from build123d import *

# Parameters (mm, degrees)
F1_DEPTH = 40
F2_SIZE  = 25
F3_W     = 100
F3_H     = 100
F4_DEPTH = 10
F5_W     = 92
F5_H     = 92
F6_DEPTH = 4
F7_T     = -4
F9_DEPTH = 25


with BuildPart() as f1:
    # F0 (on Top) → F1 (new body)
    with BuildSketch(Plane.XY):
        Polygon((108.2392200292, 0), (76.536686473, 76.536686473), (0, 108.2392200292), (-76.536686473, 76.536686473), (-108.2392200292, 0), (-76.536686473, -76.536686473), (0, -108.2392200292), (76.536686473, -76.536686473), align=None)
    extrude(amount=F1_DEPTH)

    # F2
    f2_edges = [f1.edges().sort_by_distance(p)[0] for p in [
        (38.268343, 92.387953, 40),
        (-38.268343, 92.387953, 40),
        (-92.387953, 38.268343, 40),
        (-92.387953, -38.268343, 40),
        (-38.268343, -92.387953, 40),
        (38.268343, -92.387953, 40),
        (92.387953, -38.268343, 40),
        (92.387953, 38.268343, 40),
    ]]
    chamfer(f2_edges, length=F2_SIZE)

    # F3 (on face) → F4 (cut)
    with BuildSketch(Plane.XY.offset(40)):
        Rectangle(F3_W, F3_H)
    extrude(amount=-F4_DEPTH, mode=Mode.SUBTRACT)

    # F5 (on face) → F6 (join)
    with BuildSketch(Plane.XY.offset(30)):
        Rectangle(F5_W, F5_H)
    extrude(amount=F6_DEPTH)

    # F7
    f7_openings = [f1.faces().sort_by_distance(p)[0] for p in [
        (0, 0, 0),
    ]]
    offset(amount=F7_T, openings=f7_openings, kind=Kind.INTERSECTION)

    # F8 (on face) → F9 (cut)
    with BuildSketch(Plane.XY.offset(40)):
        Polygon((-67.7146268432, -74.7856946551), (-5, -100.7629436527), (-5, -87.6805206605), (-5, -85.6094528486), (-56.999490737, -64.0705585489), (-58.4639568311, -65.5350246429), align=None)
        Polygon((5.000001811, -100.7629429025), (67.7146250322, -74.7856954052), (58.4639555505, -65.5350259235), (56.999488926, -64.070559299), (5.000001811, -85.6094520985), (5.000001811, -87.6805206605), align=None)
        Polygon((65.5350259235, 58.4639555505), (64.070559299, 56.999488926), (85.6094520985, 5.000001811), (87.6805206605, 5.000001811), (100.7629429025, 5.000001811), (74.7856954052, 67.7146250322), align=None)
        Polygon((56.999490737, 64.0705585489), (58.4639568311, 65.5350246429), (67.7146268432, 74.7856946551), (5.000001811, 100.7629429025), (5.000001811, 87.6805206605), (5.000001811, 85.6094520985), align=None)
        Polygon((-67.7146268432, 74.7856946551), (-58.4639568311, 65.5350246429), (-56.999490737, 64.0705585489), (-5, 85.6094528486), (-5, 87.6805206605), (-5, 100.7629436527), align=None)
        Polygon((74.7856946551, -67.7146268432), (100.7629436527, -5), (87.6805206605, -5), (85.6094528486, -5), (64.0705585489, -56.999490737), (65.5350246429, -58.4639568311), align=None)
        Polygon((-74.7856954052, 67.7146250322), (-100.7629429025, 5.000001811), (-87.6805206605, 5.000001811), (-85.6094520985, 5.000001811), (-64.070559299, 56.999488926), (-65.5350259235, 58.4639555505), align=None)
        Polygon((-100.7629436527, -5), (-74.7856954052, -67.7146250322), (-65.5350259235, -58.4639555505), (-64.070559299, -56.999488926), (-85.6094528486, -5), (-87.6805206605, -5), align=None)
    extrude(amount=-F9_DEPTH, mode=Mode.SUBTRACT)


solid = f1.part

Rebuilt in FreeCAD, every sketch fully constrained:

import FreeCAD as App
import Part
import Sketcher
Q = App.Units.Quantity


def edges_at(feature, points):
    """Names of the edges that pass closest to the given points."""
    edges = feature.Shape.Edges
    near = lambda p: min(range(len(edges)), key=lambda i: edges[i].distToShape(Part.Vertex(*p))[0])
    return sorted({f"Edge{near(p) + 1}" for p in points})


def faces_at(feature, points):
    """Names of the faces that lie closest to the given points."""
    faces = feature.Shape.Faces
    near = lambda p: min(range(len(faces)), key=lambda i: faces[i].distToShape(Part.Vertex(*p))[0])
    return sorted({f"Face{near(p) + 1}" for p in points})


def add_polygon(sketch, points):
    """Adds a closed chain of lines whose ends are joined by coincident constraints."""
    first, n = sketch.GeometryCount, len(points)
    for a, b in zip(points, points[1:] + points[:1]):
        sketch.addGeometry(Part.LineSegment(App.Vector(*a, 0), App.Vector(*b, 0)), False)
    for i in range(n):
        sketch.addConstraint(Sketcher.Constraint("Coincident", first + i, 2, first + (i + 1) % n, 1))

doc = App.newDocument("Part")
body = doc.addObject("PartDesign::Body", "Body")

sketch1 = body.newObject("Sketcher::SketchObject", "Sketch")
sketch1.AttachmentSupport = (doc.getObject("XY_Plane"), [""])
sketch1.MapMode = "FlatFace"
add_polygon(sketch1, [(108.23922, 0), (76.536686, 76.536686), (0, 108.23922), (-76.536686, 76.536686), (-108.23922, 0), (-76.536686, -76.536686), (0, -108.23922), (76.536686, -76.536686)])
sketch1.addConstraint([
    Sketcher.Constraint("Symmetric", 0, 2, 4, 2, -1, 1),
    Sketcher.Constraint("Symmetric", 1, 2, 5, 2, -1, 1),
    Sketcher.Constraint("Symmetric", 2, 2, 6, 2, -1, 1),
    Sketcher.Constraint("Symmetric", 3, 2, 7, 2, -1, 1),
    Sketcher.Constraint("Symmetric", 0, 2, 2, 2, -2),
    Sketcher.Constraint("PointOnObject", 1, 2, -2),
    Sketcher.Constraint("PointOnObject", 3, 2, -1),
    Sketcher.Constraint("Perpendicular", 0, 2),
    Sketcher.Constraint("Equal", 0, 1),
    Sketcher.Constraint("Angle", 0, Q("112.5 deg")),
    Sketcher.Constraint("DistanceY", -1, 1, 1, 2, 108.23922),
])
pad1 = body.newObject("PartDesign::Pad", "Pad")
pad1.Profile = sketch1
pad1.Length = 40
doc.recompute()

chamfer = body.newObject("PartDesign::Chamfer", "Chamfer")
chamfer.Base = (pad1, edges_at(pad1, [
    (38.268, 92.388, 40),
    (-38.268, 92.388, 40),
    (-92.388, 38.268, 40),
    (-92.388, -38.268, 40),
    (-38.268, -92.388, 40),
    (38.268, -92.388, 40),
    (92.388, -38.268, 40),
    (92.388, 38.268, 40),
]))
chamfer.Size = 25

sketch2 = body.newObject("Sketcher::SketchObject", "Sketch001")
sketch2.AttachmentSupport = (doc.getObject("XY_Plane"), [""])
sketch2.MapMode = "FlatFace"
sketch2.AttachmentOffset = App.Placement(App.Vector(0, 0, 40), App.Rotation())
add_polygon(sketch2, [(-50, 50), (-50, -50), (50, -50), (50, 50)])
sketch2.addConstraint([
    Sketcher.Constraint("Vertical", 0),
    Sketcher.Constraint("Horizontal", 1),
    Sketcher.Constraint("Vertical", 2),
    Sketcher.Constraint("Horizontal", 3),
    Sketcher.Constraint("Symmetric", 0, 2, 2, 2, -1, 1),
    Sketcher.Constraint("Equal", 3, 0),
    Sketcher.Constraint("DistanceX", 1, 1, 1, 2, 100.0),
])
pocket1 = body.newObject("PartDesign::Pocket", "Pocket")
pocket1.Profile = sketch2
pocket1.Length = 10

sketch3 = body.newObject("Sketcher::SketchObject", "Sketch002")
sketch3.AttachmentSupport = (doc.getObject("XY_Plane"), [""])
sketch3.MapMode = "FlatFace"
sketch3.AttachmentOffset = App.Placement(App.Vector(0, 0, 30), App.Rotation())
add_polygon(sketch3, [(-46, 46), (-46, -46), (46, -46), (46, 46)])
sketch3.addConstraint([
    Sketcher.Constraint("Vertical", 0),
    Sketcher.Constraint("Horizontal", 1),
    Sketcher.Constraint("Vertical", 2),
    Sketcher.Constraint("Horizontal", 3),
    Sketcher.Constraint("Symmetric", 0, 2, 2, 2, -1, 1),
    Sketcher.Constraint("Equal", 3, 0),
    Sketcher.Constraint("DistanceX", 1, 1, 1, 2, 92.0),
])
pad2 = body.newObject("PartDesign::Pad", "Pad001")
pad2.Profile = sketch3
pad2.Length = 4
doc.recompute()

thickness = body.newObject("PartDesign::Thickness", "Thickness")
thickness.Base = (pad2, faces_at(pad2, [(0, 0, 0)]))
thickness.Value = 4
thickness.Reversed = True
thickness.Join = "Intersection"

sketch4 = body.newObject("Sketcher::SketchObject", "Sketch003")
sketch4.AttachmentSupport = (doc.getObject("XY_Plane"), [""])
sketch4.MapMode = "FlatFace"
sketch4.AttachmentOffset = App.Placement(App.Vector(0, 0, 40), App.Rotation())
add_polygon(sketch4, [(-67.714627, -74.785695), (-5, -100.762944), (-5, -85.609453), (-56.999491, -64.070559), (-58.463957, -65.535025)])
add_polygon(sketch4, [(5.000002, -100.762943), (67.714625, -74.785695), (56.999489, -64.070559), (5.000002, -85.609452)])
add_polygon(sketch4, [(64.070559, 56.999489), (85.609452, 5.000002), (100.762943, 5.000002), (74.785695, 67.714625)])
add_polygon(sketch4, [(56.999491, 64.070559), (58.463957, 65.535025), (67.714627, 74.785695), (5.000002, 100.762943), (5.000002, 85.609452)])
add_polygon(sketch4, [(-67.714627, 74.785695), (-58.463957, 65.535025), (-56.999491, 64.070559), (-5, 85.609453), (-5, 100.762944)])
add_polygon(sketch4, [(74.785695, -67.714627), (100.762944, -5), (85.609453, -5), (64.070559, -56.999491), (65.535025, -58.463957)])
add_polygon(sketch4, [(-74.785695, 67.714625), (-100.762943, 5.000002), (-85.609452, 5.000002), (-64.070559, 56.999489)])
add_polygon(sketch4, [(-100.762944, -5), (-74.785695, -67.714625), (-64.070559, -56.999489), (-85.609453, -5)])
sketch4.addConstraint([
    Sketcher.Constraint("Vertical", 1),
    Sketcher.Constraint("Vertical", 8),
    Sketcher.Constraint("Horizontal", 10),
    Sketcher.Constraint("Vertical", 16),
    Sketcher.Constraint("Vertical", 21),
    Sketcher.Constraint("Horizontal", 24),
    Sketcher.Constraint("Horizontal", 29),
    Sketcher.Constraint("Horizontal", 35),
    Sketcher.Constraint("Symmetric", 3, 2, 13, 2, -1, 1),
    Sketcher.Constraint("Symmetric", 4, 2, 14, 2, -1, 1),
    Sketcher.Constraint("Symmetric", 0, 2, 15, 2, -1, 1),
    Sketcher.Constraint("Symmetric", 2, 2, 17, 2, -1, 1),
    Sketcher.Constraint("Symmetric", 6, 2, 19, 2, -1, 1),
    Sketcher.Constraint("Symmetric", 7, 2, 20, 2, -1, 1),
    Sketcher.Constraint("Symmetric", 5, 2, 22, 2, -1, 1),
    Sketcher.Constraint("Symmetric", 23, 2, 28, 2, -1, 1),
    Sketcher.Constraint("Symmetric", 25, 2, 30, 2, -1, 1),
    Sketcher.Constraint("Symmetric", 27, 2, 31, 2, -1, 1),
    Sketcher.Constraint("Symmetric", 11, 2, 32, 2, -1, 1),
    Sketcher.Constraint("Symmetric", 12, 2, 33, 2, -1, 1),
    Sketcher.Constraint("Symmetric", 9, 2, 34, 2, -1, 1),
    Sketcher.Constraint("Symmetric", 4, 2, 5, 2, -2),
    Sketcher.Constraint("Symmetric", 2, 2, 6, 2, -2),
    Sketcher.Constraint("Symmetric", 1, 2, 7, 2, -2),
    Sketcher.Constraint("Symmetric", 13, 2, 18, 2, -2),
    Sketcher.Constraint("Symmetric", 10, 2, 28, 2, -2),
    Sketcher.Constraint("Symmetric", 12, 2, 30, 2, -2),
    Sketcher.Constraint("Symmetric", 11, 2, 31, 2, -2),
    Sketcher.Constraint("Parallel", 0, 2),
    Sketcher.Constraint("Parallel", 3, 4),
    Sketcher.Constraint("Perpendicular", 4, 6),
    Sketcher.Constraint("Parallel", 5, 7),
    Sketcher.Constraint("Perpendicular", 7, 9),
    Sketcher.Constraint("Parallel", 9, 11),
    Sketcher.Constraint("Perpendicular", 6, 12),
    Sketcher.Constraint("Parallel", 15, 17),
    Sketcher.Constraint("Parallel", 20, 22),
    Sketcher.Constraint("Parallel", 23, 25),
    Sketcher.Constraint("Parallel", 19, 26),
    Sketcher.Constraint("Parallel", 28, 30),
    Sketcher.Constraint("Perpendicular", 22, 32),
    Sketcher.Constraint("Equal", 35, 1),
    Sketcher.Constraint("Equal", 7, 9),
    Sketcher.Constraint("Equal", 19, 26),
    Sketcher.Constraint("DistanceX", 0, 2, -1, 1, 5.0),
    Sketcher.Constraint("DistanceY", -1, 1, 9, 2, 5.000002),
    Sketcher.Constraint("Angle", 0, Q("-22.5 deg")),
    Sketcher.Constraint("DistanceX", 10, 1, 10, 2, 15.153491),
    Sketcher.Constraint("DistanceY", 13, 2, 11, 2, 2.1796),
    Sketcher.Constraint("DistanceX", 26, 2, 5, 2, 2.1796),
    Sketcher.Constraint("Distance", 5, 67.881819),
    Sketcher.Constraint("DistanceY", 2, 2, -1, 1, 64.070559),
])
pocket2 = body.newObject("PartDesign::Pocket", "Pocket001")
pocket2.Profile = sketch4
pocket2.Length = 25

doc.recompute()
